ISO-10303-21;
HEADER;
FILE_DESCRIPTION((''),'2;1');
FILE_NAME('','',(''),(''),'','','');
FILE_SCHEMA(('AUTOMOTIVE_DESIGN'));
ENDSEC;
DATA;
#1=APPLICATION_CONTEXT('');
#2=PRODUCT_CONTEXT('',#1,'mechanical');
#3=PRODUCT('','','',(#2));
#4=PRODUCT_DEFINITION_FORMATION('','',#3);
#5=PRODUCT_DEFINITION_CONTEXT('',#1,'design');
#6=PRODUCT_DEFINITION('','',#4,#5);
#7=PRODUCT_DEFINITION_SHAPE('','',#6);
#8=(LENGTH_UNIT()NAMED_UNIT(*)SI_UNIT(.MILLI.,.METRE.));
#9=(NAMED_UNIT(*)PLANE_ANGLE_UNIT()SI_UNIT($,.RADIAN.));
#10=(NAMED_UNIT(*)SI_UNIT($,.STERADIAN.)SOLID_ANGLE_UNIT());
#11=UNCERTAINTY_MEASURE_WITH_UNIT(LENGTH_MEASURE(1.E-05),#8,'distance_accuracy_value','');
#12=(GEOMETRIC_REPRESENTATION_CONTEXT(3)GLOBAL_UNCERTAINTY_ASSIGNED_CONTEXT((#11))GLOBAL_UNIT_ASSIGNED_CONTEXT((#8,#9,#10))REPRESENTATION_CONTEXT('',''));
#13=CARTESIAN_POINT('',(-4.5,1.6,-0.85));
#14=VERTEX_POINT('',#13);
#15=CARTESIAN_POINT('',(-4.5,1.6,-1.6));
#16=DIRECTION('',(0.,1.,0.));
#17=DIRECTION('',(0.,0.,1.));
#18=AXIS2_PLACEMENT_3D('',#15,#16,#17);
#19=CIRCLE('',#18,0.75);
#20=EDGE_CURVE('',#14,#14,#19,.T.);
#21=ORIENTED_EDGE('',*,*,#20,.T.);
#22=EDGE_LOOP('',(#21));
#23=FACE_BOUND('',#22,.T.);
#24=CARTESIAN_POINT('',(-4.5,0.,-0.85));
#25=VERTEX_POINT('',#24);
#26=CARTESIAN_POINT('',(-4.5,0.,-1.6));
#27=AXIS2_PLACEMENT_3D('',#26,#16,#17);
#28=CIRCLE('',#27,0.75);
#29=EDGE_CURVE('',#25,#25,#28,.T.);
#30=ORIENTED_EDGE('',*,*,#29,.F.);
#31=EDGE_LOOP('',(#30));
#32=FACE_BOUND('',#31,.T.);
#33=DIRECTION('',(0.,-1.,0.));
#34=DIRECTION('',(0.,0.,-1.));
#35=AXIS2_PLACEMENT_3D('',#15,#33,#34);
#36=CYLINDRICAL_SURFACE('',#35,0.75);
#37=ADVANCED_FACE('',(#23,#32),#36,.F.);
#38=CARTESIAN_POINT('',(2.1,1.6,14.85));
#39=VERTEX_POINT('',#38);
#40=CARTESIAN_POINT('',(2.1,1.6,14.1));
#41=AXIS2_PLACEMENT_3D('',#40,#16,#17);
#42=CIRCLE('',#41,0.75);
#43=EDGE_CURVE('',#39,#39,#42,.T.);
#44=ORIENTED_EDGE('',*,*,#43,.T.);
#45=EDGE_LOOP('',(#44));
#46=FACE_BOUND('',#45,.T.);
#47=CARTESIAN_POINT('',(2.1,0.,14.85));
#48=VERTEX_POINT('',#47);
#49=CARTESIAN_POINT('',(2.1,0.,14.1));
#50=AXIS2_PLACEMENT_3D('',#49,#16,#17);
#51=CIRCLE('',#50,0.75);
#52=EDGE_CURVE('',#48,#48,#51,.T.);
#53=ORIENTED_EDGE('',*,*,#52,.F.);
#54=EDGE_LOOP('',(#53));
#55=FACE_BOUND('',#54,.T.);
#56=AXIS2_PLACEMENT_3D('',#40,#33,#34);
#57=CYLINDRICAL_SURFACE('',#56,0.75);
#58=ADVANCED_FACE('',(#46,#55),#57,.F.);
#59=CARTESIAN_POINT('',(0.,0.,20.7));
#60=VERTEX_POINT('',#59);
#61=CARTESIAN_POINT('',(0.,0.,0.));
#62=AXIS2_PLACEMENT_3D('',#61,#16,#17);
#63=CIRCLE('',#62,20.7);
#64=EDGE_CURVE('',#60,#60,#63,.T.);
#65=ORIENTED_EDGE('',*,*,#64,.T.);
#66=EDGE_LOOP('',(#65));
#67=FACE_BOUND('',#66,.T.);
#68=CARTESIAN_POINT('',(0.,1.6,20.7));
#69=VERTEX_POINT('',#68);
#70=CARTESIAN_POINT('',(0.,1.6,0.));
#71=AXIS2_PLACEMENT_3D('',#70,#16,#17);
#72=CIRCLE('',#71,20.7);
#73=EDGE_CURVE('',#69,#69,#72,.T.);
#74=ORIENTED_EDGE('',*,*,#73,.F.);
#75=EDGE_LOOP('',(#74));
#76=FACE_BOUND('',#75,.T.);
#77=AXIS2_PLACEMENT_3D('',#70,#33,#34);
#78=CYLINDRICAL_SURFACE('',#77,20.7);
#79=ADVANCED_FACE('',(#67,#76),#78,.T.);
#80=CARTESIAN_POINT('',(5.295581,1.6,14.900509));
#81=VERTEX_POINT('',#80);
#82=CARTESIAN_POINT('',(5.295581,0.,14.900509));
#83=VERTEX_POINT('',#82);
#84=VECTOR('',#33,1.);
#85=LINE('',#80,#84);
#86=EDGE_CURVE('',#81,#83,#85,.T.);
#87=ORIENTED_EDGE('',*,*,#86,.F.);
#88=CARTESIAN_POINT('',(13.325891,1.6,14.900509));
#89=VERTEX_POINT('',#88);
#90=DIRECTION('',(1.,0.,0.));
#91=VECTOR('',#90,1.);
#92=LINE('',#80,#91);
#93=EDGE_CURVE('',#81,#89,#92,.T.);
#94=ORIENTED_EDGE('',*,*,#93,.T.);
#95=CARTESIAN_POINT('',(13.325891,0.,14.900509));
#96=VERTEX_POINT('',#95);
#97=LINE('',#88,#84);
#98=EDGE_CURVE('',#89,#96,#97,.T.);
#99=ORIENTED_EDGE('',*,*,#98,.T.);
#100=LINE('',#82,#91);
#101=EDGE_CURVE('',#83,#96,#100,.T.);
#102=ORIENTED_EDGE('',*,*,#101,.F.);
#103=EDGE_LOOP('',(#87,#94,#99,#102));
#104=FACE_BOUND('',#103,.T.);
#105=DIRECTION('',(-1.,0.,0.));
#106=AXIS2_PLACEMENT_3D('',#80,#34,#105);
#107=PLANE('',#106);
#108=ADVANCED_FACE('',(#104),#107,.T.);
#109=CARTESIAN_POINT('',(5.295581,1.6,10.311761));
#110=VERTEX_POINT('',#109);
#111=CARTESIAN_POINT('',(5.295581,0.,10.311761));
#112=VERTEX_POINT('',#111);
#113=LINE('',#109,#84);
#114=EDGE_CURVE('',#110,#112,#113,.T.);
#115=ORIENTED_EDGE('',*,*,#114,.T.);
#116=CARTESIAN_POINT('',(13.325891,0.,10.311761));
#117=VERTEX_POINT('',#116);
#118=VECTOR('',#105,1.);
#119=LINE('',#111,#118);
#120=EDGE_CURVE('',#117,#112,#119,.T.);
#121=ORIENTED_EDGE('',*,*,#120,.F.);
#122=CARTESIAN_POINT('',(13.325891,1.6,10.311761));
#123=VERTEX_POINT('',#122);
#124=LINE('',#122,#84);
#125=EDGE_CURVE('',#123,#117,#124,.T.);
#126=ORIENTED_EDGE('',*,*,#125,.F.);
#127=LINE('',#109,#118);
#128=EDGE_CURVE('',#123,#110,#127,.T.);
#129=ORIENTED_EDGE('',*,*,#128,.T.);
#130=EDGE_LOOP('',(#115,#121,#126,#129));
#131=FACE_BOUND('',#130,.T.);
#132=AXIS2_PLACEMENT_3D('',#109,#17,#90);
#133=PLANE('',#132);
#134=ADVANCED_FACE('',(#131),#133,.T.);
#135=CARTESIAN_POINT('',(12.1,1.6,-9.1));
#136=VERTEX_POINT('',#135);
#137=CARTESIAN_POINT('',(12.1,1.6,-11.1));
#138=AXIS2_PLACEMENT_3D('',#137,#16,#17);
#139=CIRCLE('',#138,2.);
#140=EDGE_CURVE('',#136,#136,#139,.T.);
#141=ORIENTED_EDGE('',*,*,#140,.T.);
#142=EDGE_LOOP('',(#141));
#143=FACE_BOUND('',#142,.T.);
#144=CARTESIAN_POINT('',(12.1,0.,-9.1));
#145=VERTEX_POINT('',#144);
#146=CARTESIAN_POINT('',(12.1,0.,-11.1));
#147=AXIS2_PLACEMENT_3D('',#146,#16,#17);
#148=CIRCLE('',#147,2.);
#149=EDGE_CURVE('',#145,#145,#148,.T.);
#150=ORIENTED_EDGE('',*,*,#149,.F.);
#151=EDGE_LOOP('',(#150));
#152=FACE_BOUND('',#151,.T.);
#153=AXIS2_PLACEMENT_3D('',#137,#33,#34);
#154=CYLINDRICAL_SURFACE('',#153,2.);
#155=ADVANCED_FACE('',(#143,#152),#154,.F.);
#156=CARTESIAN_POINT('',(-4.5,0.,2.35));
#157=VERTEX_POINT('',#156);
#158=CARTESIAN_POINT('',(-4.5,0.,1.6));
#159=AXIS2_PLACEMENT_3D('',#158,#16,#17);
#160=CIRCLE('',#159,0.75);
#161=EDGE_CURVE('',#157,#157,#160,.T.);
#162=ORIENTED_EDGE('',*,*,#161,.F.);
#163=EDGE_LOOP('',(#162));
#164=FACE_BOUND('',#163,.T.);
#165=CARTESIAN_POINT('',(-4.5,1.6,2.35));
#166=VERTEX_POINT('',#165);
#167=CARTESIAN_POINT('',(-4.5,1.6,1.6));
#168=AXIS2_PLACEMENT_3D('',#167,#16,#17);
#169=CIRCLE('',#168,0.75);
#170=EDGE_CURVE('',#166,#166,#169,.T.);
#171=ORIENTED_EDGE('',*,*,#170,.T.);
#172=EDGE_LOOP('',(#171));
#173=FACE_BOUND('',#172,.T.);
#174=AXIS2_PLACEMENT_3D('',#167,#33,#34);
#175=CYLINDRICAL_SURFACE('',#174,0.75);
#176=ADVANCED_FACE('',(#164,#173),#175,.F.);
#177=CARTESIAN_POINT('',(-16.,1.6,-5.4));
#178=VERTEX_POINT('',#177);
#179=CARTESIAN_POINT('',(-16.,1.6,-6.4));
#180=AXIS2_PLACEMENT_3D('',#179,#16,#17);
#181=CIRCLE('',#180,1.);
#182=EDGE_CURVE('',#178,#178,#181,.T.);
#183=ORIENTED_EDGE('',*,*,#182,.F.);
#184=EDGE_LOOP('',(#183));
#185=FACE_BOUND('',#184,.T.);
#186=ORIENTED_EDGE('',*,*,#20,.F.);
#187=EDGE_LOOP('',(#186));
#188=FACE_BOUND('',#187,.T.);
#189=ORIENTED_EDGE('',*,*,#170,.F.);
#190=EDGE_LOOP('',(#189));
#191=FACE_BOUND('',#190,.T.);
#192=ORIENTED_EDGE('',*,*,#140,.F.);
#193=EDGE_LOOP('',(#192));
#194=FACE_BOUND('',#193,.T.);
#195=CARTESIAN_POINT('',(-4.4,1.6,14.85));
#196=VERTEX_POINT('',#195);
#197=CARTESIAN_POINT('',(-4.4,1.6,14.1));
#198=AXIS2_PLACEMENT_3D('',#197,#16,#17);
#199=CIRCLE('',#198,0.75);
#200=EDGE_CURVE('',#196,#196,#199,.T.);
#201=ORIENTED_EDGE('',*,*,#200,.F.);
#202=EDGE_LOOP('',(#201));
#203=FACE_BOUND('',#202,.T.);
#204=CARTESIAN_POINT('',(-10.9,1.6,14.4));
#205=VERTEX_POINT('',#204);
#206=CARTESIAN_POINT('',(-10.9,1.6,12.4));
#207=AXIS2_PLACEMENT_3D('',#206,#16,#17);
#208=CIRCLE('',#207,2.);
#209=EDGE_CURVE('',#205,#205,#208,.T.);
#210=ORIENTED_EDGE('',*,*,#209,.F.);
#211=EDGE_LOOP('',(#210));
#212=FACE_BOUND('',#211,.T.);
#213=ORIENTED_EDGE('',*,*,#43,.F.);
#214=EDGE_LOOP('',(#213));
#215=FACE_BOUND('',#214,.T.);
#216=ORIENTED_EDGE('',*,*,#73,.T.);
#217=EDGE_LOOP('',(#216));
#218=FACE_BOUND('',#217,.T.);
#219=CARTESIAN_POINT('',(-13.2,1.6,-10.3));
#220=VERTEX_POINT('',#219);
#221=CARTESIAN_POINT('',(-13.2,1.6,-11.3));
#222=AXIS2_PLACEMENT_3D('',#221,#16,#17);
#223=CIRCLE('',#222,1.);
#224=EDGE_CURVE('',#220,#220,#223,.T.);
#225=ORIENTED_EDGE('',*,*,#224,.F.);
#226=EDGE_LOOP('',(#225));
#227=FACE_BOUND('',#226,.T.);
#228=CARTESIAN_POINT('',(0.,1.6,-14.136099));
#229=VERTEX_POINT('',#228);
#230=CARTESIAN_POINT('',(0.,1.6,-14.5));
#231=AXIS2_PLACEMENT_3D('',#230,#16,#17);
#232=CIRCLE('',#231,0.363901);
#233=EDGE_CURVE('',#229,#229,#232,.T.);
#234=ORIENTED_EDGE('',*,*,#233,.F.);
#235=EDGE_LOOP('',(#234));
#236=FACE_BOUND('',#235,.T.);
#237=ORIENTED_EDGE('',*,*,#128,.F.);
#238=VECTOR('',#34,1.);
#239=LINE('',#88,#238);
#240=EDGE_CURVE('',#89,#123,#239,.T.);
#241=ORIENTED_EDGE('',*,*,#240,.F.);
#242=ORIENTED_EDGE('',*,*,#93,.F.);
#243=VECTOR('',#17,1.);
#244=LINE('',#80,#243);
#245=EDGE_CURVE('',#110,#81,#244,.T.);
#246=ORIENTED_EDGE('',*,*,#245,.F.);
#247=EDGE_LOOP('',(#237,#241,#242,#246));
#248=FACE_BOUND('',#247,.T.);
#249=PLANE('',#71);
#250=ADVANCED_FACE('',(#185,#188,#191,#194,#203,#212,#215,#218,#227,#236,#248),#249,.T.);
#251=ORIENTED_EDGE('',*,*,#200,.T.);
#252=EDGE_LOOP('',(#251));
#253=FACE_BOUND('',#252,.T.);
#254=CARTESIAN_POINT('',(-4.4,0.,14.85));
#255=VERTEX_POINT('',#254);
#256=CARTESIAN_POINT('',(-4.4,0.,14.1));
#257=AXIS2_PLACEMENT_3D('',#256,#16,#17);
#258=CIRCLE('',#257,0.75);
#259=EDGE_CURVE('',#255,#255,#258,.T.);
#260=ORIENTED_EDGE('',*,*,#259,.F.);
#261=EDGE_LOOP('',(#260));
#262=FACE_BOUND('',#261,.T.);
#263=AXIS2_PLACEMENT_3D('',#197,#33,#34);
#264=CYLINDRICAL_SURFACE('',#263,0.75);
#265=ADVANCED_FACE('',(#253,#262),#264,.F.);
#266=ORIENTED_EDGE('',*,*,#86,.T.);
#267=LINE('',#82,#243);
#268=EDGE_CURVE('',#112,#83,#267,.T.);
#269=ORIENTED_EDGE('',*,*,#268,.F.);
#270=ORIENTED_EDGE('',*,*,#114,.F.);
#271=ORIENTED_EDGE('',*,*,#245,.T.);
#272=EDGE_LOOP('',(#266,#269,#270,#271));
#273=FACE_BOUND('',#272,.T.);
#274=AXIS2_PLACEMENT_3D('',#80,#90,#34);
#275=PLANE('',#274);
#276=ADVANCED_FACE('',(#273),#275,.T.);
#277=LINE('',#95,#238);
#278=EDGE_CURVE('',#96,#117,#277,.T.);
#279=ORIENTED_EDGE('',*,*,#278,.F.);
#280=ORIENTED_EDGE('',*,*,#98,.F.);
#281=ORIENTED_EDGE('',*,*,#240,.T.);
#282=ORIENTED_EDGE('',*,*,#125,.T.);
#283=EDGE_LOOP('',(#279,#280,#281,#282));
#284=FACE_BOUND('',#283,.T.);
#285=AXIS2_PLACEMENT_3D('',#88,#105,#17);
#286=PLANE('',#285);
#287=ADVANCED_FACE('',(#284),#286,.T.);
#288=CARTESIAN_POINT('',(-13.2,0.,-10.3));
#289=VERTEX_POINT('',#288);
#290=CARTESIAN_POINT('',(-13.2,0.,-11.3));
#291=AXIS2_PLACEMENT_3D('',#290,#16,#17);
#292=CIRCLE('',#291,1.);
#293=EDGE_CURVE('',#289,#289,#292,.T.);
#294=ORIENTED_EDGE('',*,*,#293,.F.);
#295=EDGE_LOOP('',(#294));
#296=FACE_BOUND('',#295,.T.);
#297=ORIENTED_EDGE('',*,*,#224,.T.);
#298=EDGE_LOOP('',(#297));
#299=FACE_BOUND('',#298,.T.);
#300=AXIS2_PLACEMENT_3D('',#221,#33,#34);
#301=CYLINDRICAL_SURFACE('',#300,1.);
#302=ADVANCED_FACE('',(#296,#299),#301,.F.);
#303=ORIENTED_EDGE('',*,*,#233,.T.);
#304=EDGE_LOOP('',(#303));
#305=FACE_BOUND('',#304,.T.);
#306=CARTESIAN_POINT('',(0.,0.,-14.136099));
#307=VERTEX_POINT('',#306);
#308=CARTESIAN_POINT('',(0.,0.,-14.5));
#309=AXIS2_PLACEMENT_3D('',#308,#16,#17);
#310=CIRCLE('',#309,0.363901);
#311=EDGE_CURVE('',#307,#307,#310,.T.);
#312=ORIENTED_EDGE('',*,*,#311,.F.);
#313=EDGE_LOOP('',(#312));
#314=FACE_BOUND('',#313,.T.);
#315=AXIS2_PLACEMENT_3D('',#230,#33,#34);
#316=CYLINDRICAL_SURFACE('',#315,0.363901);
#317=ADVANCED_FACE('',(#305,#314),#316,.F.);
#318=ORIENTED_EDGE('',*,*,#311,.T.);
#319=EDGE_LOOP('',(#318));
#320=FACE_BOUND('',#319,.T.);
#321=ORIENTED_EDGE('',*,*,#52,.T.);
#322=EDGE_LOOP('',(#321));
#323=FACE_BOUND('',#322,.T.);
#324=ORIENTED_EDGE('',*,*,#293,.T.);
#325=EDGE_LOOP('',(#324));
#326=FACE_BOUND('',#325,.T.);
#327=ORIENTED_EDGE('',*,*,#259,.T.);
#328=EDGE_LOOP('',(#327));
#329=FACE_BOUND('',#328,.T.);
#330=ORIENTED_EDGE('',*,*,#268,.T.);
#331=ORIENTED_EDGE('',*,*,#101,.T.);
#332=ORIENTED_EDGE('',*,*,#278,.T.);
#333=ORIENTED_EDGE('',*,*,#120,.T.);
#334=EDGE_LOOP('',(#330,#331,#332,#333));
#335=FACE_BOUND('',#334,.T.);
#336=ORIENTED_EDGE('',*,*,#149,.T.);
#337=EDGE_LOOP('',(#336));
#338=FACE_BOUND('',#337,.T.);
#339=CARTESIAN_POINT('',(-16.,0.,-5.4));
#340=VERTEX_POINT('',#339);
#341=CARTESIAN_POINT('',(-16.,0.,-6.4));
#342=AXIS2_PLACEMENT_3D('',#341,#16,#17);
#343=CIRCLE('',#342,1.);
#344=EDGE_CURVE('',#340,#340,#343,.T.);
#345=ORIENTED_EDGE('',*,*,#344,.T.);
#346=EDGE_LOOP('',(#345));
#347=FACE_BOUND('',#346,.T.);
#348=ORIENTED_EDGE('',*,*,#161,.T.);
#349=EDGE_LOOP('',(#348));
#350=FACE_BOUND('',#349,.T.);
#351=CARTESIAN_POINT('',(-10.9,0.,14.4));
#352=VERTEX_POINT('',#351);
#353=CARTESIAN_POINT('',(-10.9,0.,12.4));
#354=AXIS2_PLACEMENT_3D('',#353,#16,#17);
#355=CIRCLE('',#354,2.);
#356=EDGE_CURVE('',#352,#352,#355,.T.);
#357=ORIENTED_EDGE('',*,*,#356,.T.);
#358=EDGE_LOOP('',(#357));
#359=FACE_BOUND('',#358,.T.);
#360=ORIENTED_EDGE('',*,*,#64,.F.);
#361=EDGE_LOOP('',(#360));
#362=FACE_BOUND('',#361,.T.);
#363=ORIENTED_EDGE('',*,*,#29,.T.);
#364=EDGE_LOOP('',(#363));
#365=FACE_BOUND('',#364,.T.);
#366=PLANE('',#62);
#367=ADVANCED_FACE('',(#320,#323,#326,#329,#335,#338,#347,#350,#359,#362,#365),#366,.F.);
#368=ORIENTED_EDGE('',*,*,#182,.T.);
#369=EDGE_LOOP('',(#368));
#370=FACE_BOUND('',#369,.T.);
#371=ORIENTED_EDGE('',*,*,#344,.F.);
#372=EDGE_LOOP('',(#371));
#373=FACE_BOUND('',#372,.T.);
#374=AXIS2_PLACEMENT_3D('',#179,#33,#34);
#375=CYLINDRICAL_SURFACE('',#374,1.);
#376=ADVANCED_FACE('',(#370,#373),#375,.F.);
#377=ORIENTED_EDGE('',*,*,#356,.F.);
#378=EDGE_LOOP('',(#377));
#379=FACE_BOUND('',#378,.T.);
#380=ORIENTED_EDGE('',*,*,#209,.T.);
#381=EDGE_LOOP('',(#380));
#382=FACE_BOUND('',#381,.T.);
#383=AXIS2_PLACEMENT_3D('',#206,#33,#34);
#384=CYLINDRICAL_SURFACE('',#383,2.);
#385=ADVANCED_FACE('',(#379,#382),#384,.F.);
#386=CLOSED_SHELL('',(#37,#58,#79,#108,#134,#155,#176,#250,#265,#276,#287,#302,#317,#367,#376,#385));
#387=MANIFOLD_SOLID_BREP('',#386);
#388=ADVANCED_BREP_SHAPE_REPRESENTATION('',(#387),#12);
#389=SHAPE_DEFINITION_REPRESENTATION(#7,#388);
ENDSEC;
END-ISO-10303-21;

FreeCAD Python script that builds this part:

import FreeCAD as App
import Part
import Sketcher

V = App.Vector


def add_polygon(sketch, points):
    """Adds a closed chain of lines whose ends are joined by coincident constraints."""
    first, n = sketch.GeometryCount, len(points)
    for a, b in zip(points, points[1:] + points[:1]):
        sketch.addGeometry(Part.LineSegment(App.Vector(*a, 0), App.Vector(*b, 0)), False)
    for i in range(n):
        sketch.addConstraint(Sketcher.Constraint("Coincident", first + i, 2, first + (i + 1) % n, 1))

doc = App.newDocument("Part")
params = doc.addObject("Spreadsheet::Sheet", "Params")
for row, (alias, value) in enumerate([
    ("sketch1_diameter", "4 mm"),
    ("sketch1_diameter2", "2 mm"),
    ("sketch1_diameter3", "41.4 mm"),
    ("sketch1_diameter4", "1.5 mm"),
    ("pad1_length", "1.6 mm"),
], start=1):
    params.set(f"A{row}", alias)
    params.set(f"B{row}", "=" + value)
    params.setAlias(f"B{row}", alias)

body = doc.addObject("PartDesign::Body", "Body")

# Sketch on XZ plane
sketch1 = body.newObject("Sketcher::SketchObject", "Sketch")
sketch1.AttachmentSupport = (doc.getObject("XZ_Plane"), [""])
sketch1.MapMode = "FlatFace"
sketch1.addGeometry(Part.Circle(V(0, 0, 0), V(0, 0, 1), 20.7), False)  # 0
sketch1.addGeometry(Part.Circle(V(-10.9, 12.4, 0), V(0, 0, 1), 2), False)  # 1
sketch1.addGeometry(Part.Circle(V(-4.4, 14.1, 0), V(0, 0, 1), 0.75), False)  # 2
sketch1.addGeometry(Part.Circle(V(-4.5, 1.6, 0), V(0, 0, 1), 0.75), False)  # 3
sketch1.addGeometry(Part.Circle(V(2.1, 14.1, 0), V(0, 0, 1), 0.75), False)  # 4
add_polygon(sketch1, [(13.33, 14.9), (5.3, 14.9), (5.3, 10.31), (13.33, 10.31)])  # lines 5-8
sketch1.addGeometry(Part.Circle(V(-16, -6.4, 0), V(0, 0, 1), 1), False)  # 9
sketch1.addGeometry(Part.Circle(V(-4.5, -1.6, 0), V(0, 0, 1), 0.75), False)  # 10
sketch1.addGeometry(Part.Circle(V(-13.2, -11.3, 0), V(0, 0, 1), 1), False)  # 11
sketch1.addGeometry(Part.Circle(V(0, -14.5, 0), V(0, 0, 1), 0.36), False)  # 12
sketch1.addGeometry(Part.Circle(V(12.1, -11.1, 0), V(0, 0, 1), 2), False)  # 13
sketch1.addConstraint([
    Sketcher.Constraint("Horizontal", 5),
    Sketcher.Constraint("Vertical", 6),
    Sketcher.Constraint("Horizontal", 7),
    Sketcher.Constraint("Vertical", 8),
    Sketcher.Constraint("Coincident", 0, 3, -1, 1),
    Sketcher.Constraint("Equal", 2, 3),
    Sketcher.Constraint("Equal", 3, 4),
    Sketcher.Constraint("Equal", 4, 10),
    Sketcher.Constraint("Equal", 9, 11),
    Sketcher.Constraint("Equal", 1, 13),
    Sketcher.Constraint("Symmetric", 3, 3, 10, 3, -1),
    Sketcher.Constraint("PointOnObject", 12, 3, -2),
    Sketcher.Constraint("Horizontal", 2, 3, 4, 3),
    Sketcher.Constraint("Diameter", 1, 4.0),
    Sketcher.Constraint("Diameter", 9, 2.0),
    Sketcher.Constraint("Diameter", 0, 41.4),
    Sketcher.Constraint("Diameter", 2, 1.5),
    Sketcher.Constraint("DistanceX", 9, 3, -1, 1, 16.0),
    Sketcher.Constraint("DistanceX", 1, 3, 4, 3, 13.0),
    Sketcher.Constraint("DistanceY", 9, 3, 3, 3, 8.0),
    Sketcher.Constraint("DistanceY", 10, 3, 1, 3, 14.0),
    Sketcher.Constraint("Diameter", 12, 0.727801),
    Sketcher.Constraint("DistanceX", 1, 3, -1, 1, 10.9),
    Sketcher.Constraint("DistanceY", -1, 1, 1, 3, 12.4),
    Sketcher.Constraint("DistanceX", 2, 3, -1, 1, 4.4),
    Sketcher.Constraint("DistanceY", -1, 1, 2, 3, 14.1),
    Sketcher.Constraint("DistanceX", 3, 3, -1, 1, 4.5),
    Sketcher.Constraint("DistanceX", 11, 3, -1, 1, 13.2),
    Sketcher.Constraint("DistanceY", 11, 3, -1, 1, 11.3),
    Sketcher.Constraint("DistanceY", 12, 3, -1, 1, 14.5),
    Sketcher.Constraint("DistanceX", -1, 1, 13, 3, 12.1),
    Sketcher.Constraint("DistanceY", 13, 3, -1, 1, 11.1),
    Sketcher.Constraint("DistanceX", 5, 2, 5, 1, 8.030309),
    Sketcher.Constraint("DistanceY", 6, 2, 6, 1, 4.588748),
    Sketcher.Constraint("DistanceX", -1, 1, 5, 2, 5.295581),
    Sketcher.Constraint("DistanceY", -1, 1, 5, 2, 14.900509),
])
sketch1.setExpression("Constraints[17]", "Params.sketch1_diameter")
sketch1.setExpression("Constraints[18]", "Params.sketch1_diameter2")
sketch1.setExpression("Constraints[19]", "Params.sketch1_diameter3")
sketch1.setExpression("Constraints[20]", "Params.sketch1_diameter4")
pad1 = body.newObject("PartDesign::Pad", "Pad")
pad1.Profile = sketch1
pad1.setExpression("Length", "Params.pad1_length")
pad1.Reversed = True

doc.recompute()
